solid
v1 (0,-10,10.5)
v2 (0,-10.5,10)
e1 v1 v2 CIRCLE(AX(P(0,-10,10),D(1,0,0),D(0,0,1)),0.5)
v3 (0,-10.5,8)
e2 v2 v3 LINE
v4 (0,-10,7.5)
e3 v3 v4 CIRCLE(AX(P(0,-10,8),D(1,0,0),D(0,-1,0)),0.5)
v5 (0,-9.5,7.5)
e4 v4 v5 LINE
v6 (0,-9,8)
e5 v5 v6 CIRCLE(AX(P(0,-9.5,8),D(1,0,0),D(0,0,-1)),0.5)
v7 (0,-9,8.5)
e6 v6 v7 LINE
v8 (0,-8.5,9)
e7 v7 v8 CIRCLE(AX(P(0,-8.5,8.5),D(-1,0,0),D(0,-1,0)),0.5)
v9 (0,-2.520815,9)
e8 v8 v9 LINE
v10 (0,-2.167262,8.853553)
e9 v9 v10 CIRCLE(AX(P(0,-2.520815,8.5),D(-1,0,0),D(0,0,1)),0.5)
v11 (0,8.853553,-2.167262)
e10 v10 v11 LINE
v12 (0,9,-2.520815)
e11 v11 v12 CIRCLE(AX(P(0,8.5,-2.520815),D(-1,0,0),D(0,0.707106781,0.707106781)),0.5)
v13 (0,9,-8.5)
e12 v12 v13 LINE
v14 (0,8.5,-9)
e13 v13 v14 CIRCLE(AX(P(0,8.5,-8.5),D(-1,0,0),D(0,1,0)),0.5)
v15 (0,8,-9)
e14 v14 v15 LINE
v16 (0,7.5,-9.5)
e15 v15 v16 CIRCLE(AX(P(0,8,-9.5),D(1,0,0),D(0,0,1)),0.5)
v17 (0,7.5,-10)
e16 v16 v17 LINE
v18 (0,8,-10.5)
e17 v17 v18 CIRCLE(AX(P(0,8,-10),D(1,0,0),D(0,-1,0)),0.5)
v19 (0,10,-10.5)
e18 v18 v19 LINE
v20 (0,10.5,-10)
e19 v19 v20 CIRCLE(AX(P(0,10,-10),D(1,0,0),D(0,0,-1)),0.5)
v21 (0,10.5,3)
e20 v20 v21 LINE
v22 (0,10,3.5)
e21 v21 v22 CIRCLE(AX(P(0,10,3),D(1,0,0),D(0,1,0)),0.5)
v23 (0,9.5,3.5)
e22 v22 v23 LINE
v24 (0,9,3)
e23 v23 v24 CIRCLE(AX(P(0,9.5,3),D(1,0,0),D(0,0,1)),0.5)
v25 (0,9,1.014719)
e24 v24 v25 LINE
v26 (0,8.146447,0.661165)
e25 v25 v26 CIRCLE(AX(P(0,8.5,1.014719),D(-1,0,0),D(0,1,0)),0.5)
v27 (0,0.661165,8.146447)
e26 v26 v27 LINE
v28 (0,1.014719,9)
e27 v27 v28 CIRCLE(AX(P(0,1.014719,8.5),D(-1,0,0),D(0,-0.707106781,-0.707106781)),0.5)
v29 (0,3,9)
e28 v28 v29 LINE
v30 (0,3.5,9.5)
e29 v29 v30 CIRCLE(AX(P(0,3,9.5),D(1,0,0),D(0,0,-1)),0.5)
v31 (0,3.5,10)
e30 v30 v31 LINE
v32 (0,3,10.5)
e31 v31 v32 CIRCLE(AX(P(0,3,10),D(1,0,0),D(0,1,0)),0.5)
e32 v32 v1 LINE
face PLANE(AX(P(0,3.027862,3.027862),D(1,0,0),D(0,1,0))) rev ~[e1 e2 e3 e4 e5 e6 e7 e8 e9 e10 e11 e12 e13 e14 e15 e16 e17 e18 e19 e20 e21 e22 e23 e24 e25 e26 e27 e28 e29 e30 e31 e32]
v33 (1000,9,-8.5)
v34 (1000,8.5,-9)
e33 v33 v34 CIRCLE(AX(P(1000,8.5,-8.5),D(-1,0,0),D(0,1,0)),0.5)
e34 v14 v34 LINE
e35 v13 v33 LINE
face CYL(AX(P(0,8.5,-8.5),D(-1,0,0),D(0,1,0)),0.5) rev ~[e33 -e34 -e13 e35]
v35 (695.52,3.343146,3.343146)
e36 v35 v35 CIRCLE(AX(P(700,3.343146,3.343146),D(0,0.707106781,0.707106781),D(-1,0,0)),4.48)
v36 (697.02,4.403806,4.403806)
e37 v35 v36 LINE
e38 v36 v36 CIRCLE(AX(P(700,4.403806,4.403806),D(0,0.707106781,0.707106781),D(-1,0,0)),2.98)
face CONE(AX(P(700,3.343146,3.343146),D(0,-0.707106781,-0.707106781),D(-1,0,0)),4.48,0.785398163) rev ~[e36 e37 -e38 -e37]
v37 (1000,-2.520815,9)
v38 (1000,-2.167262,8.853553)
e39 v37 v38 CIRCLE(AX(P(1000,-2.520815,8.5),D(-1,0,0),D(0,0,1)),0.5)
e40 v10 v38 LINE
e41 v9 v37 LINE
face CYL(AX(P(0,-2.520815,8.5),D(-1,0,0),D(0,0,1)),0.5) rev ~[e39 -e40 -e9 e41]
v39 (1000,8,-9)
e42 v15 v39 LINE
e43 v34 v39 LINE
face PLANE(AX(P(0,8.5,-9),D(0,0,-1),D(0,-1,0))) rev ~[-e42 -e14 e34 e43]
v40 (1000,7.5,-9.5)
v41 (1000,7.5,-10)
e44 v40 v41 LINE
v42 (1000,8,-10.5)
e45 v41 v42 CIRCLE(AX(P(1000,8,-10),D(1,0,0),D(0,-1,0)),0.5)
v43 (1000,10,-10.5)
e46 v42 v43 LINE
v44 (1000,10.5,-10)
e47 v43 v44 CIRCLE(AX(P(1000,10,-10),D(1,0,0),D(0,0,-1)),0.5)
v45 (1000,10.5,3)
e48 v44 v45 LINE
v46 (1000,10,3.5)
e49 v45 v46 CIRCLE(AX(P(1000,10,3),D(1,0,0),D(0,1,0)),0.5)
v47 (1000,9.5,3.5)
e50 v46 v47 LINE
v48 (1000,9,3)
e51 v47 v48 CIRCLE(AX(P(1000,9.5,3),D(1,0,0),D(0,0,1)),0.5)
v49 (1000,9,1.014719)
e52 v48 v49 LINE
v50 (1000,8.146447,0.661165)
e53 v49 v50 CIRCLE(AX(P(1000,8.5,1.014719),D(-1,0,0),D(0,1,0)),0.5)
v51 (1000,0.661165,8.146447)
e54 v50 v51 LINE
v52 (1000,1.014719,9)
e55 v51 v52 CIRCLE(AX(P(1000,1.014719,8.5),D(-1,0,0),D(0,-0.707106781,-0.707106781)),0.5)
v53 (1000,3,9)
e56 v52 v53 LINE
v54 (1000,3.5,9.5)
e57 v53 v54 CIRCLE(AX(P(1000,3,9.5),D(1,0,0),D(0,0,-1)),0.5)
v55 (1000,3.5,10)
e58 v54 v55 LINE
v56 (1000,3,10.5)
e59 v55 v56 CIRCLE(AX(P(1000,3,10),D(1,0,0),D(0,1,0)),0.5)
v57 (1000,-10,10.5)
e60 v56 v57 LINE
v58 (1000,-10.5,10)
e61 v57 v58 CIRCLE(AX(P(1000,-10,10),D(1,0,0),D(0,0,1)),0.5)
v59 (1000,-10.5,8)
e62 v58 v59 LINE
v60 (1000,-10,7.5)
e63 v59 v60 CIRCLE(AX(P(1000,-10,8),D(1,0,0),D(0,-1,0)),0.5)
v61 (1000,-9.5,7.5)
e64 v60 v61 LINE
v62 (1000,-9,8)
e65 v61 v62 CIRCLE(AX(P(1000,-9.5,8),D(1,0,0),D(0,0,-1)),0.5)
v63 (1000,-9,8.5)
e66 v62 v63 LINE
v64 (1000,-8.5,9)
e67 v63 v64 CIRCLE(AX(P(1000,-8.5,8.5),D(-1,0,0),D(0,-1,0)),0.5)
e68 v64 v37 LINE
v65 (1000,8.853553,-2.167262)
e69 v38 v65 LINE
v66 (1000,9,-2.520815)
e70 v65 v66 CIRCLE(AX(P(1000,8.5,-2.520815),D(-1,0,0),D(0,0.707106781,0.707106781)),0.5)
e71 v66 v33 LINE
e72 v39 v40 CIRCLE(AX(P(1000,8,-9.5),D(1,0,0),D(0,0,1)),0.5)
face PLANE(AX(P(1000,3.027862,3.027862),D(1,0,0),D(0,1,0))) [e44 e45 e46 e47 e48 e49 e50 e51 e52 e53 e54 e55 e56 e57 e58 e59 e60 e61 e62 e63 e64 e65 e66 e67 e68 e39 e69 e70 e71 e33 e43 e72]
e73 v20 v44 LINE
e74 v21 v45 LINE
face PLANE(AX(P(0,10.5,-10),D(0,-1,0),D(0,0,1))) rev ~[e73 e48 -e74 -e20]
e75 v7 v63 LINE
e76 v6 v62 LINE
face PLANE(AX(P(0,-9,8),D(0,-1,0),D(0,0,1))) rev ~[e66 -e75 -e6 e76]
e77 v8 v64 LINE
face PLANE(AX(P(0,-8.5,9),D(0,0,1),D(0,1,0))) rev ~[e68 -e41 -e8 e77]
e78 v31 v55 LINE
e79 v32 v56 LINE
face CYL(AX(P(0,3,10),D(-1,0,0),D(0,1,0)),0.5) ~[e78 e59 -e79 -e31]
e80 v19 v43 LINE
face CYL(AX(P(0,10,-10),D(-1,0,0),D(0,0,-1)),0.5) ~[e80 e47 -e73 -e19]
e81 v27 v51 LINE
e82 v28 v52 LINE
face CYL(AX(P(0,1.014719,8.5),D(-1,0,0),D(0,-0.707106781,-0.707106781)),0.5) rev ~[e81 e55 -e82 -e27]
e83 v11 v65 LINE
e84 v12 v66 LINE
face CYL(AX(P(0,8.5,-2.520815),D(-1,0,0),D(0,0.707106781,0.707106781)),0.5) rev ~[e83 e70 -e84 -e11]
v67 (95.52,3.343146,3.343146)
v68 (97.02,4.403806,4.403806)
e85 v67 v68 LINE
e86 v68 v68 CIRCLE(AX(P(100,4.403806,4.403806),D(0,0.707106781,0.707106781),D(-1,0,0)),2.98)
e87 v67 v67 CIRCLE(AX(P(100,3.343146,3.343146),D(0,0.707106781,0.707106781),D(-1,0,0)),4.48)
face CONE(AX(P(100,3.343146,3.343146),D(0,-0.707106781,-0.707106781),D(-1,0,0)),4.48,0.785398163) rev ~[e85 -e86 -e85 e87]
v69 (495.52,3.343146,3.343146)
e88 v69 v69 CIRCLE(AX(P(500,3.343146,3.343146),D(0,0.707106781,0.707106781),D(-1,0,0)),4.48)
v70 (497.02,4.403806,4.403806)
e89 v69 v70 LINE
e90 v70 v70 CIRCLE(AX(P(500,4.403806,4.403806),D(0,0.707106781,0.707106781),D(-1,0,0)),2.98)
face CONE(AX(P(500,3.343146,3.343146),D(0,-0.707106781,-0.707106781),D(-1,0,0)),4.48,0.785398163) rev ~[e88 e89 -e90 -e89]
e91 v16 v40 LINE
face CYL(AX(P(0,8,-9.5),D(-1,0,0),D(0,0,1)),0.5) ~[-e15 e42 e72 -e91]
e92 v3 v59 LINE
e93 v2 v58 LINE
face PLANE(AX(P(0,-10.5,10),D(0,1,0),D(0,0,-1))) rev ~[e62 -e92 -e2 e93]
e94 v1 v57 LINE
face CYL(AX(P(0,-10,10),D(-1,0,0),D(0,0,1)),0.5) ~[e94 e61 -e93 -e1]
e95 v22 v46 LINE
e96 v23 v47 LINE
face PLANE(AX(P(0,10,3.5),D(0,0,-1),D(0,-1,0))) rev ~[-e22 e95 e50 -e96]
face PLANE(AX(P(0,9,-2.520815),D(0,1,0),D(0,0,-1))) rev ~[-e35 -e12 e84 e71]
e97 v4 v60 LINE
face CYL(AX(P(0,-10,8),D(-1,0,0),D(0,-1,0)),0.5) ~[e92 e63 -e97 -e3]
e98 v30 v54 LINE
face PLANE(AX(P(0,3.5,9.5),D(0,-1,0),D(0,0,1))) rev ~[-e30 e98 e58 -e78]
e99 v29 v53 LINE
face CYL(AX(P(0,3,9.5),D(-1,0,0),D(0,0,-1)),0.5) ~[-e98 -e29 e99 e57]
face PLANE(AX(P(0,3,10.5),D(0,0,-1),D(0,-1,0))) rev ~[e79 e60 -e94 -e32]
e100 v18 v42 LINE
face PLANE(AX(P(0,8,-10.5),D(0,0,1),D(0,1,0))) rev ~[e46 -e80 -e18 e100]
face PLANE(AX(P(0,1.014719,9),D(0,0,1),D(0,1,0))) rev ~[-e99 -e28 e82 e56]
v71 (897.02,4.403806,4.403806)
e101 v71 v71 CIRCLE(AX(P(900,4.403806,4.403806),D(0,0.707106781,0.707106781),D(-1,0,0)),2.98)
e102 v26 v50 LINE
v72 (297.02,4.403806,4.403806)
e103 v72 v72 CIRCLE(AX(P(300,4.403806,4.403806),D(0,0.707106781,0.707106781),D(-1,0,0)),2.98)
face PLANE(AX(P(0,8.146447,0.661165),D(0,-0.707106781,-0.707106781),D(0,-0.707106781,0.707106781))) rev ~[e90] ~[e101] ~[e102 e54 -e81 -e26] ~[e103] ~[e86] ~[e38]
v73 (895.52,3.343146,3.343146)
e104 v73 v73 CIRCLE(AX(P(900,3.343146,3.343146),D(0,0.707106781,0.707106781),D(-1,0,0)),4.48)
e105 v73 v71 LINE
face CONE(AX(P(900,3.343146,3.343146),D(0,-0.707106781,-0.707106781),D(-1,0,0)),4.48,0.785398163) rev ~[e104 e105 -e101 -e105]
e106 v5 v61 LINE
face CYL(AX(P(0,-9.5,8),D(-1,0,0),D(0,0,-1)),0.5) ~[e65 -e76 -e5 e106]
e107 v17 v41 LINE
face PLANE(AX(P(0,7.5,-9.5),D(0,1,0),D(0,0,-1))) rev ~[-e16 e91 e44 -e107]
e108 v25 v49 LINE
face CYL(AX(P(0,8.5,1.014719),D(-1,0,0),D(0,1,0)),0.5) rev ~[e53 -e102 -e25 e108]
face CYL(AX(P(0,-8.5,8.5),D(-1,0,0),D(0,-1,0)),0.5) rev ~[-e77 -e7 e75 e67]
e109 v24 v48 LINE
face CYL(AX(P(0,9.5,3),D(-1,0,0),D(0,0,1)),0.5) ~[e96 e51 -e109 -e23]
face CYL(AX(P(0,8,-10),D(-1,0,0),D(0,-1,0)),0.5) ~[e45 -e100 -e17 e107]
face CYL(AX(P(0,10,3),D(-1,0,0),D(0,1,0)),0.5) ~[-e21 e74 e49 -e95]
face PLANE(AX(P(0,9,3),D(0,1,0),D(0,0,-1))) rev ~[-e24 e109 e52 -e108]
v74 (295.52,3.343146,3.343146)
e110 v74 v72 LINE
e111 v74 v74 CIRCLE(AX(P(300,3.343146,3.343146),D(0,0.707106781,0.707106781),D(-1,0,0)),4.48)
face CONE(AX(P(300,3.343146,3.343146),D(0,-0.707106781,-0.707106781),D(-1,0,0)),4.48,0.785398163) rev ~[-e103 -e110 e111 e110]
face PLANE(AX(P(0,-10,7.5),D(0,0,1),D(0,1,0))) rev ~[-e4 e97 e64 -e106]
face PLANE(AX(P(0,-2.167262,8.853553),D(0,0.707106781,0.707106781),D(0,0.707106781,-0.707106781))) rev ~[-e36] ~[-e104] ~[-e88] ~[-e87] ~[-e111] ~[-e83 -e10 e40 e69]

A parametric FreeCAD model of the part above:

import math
import FreeCAD as App
import Part
import Sketcher
from FreeCAD import Vector

doc = App.newDocument("Part")
body = doc.addObject("PartDesign::Body", "Body")

sketch1 = body.newObject("Sketcher::SketchObject", "Sketch")
sketch1.AttachmentSupport = (doc.getObject("YZ_Plane"), [""])
sketch1.MapMode = "FlatFace"
sketch1.addGeometry(Part.LineSegment(Vector(8, -10.5, 0), Vector(10, -10.5, 0)), False)
sketch1.addGeometry(Part.ArcOfCircle(Part.Circle(Vector(10, -10, 0), Vector(0, 0, 1), 0.5), math.radians(-90), math.radians(0)), False)
sketch1.addGeometry(Part.LineSegment(Vector(10.5, -10, 0), Vector(10.5, 3, 0)), False)
sketch1.addGeometry(Part.ArcOfCircle(Part.Circle(Vector(10, 3, 0), Vector(0, 0, 1), 0.5), math.radians(0), math.radians(90)), False)
sketch1.addGeometry(Part.LineSegment(Vector(10, 3.5, 0), Vector(9.5, 3.5, 0)), False)
sketch1.addGeometry(Part.ArcOfCircle(Part.Circle(Vector(9.5, 3, 0), Vector(0, 0, 1), 0.5), math.radians(90), math.radians(180)), False)
sketch1.addGeometry(Part.LineSegment(Vector(9, 3, 0), Vector(9, 1.01, 0)), False)
sketch1.addGeometry(Part.ArcOfCircle(Part.Circle(Vector(8.5, 1.01, 0), Vector(0, 0, 1), 0.5), math.radians(-135), math.radians(0)), False)
sketch1.addGeometry(Part.LineSegment(Vector(8.15, 0.66, 0), Vector(0.66, 8.15, 0)), False)
sketch1.addGeometry(Part.ArcOfCircle(Part.Circle(Vector(1.01, 8.5, 0), Vector(0, 0, 1), 0.5), math.radians(90), math.radians(225)), False)
sketch1.addGeometry(Part.LineSegment(Vector(1.01, 9, 0), Vector(3, 9, 0)), False)
sketch1.addGeometry(Part.ArcOfCircle(Part.Circle(Vector(3, 9.5, 0), Vector(0, 0, 1), 0.5), math.radians(-90), math.radians(0)), False)
sketch1.addGeometry(Part.LineSegment(Vector(3.5, 9.5, 0), Vector(3.5, 10, 0)), False)
sketch1.addGeometry(Part.ArcOfCircle(Part.Circle(Vector(3, 10, 0), Vector(0, 0, 1), 0.5), math.radians(0), math.radians(90)), False)
sketch1.addGeometry(Part.LineSegment(Vector(3, 10.5, 0), Vector(-10, 10.5, 0)), False)
sketch1.addGeometry(Part.ArcOfCircle(Part.Circle(Vector(-10, 10, 0), Vector(0, 0, 1), 0.5), math.radians(90), math.radians(180)), False)
sketch1.addGeometry(Part.LineSegment(Vector(-10.5, 10, 0), Vector(-10.5, 8, 0)), False)
sketch1.addGeometry(Part.ArcOfCircle(Part.Circle(Vector(-10, 8, 0), Vector(0, 0, 1), 0.5), math.radians(180), math.radians(270)), False)
sketch1.addGeometry(Part.LineSegment(Vector(-10, 7.5, 0), Vector(-9.5, 7.5, 0)), False)
sketch1.addGeometry(Part.ArcOfCircle(Part.Circle(Vector(-9.5, 8, 0), Vector(0, 0, 1), 0.5), math.radians(-90), math.radians(0)), False)
sketch1.addGeometry(Part.LineSegment(Vector(-9, 8, 0), Vector(-9, 8.5, 0)), False)
sketch1.addGeometry(Part.ArcOfCircle(Part.Circle(Vector(-8.5, 8.5, 0), Vector(0, 0, 1), 0.5), math.radians(90), math.radians(180)), False)
sketch1.addGeometry(Part.LineSegment(Vector(-8.5, 9, 0), Vector(-2.52, 9, 0)), False)
sketch1.addGeometry(Part.ArcOfCircle(Part.Circle(Vector(-2.52, 8.5, 0), Vector(0, 0, 1), 0.5), math.radians(45), math.radians(90)), False)
sketch1.addGeometry(Part.LineSegment(Vector(-2.17, 8.85, 0), Vector(8.85, -2.17, 0)), False)
sketch1.addGeometry(Part.ArcOfCircle(Part.Circle(Vector(8.5, -2.52, 0), Vector(0, 0, 1), 0.5), math.radians(0), math.radians(45)), False)
sketch1.addGeometry(Part.LineSegment(Vector(9, -2.52, 0), Vector(9, -8.5, 0)), False)
sketch1.addGeometry(Part.ArcOfCircle(Part.Circle(Vector(8.5, -8.5, 0), Vector(0, 0, 1), 0.5), math.radians(-90), math.radians(0)), False)
sketch1.addGeometry(Part.LineSegment(Vector(8.5, -9, 0), Vector(8, -9, 0)), False)
sketch1.addGeometry(Part.ArcOfCircle(Part.Circle(Vector(8, -9.5, 0), Vector(0, 0, 1), 0.5), math.radians(90), math.radians(180)), False)
sketch1.addGeometry(Part.LineSegment(Vector(7.5, -9.5, 0), Vector(7.5, -10, 0)), False)
sketch1.addGeometry(Part.ArcOfCircle(Part.Circle(Vector(8, -10, 0), Vector(0, 0, 1), 0.5), math.radians(180), math.radians(270)), False)
sketch1.addConstraint(Sketcher.Constraint("Tangent", 0, 2, 1, 1))
sketch1.addConstraint(Sketcher.Constraint("Tangent", 1, 2, 2, 1))
sketch1.addConstraint(Sketcher.Constraint("Tangent", 2, 2, 3, 1))
sketch1.addConstraint(Sketcher.Constraint("Tangent", 3, 2, 4, 1))
sketch1.addConstraint(Sketcher.Constraint("Tangent", 4, 2, 5, 1))
sketch1.addConstraint(Sketcher.Constraint("Tangent", 5, 2, 6, 1))
sketch1.addConstraint(Sketcher.Constraint("Tangent", 6, 2, 7, 2))
sketch1.addConstraint(Sketcher.Constraint("Tangent", 7, 1, 8, 1))
sketch1.addConstraint(Sketcher.Constraint("Tangent", 8, 2, 9, 2))
sketch1.addConstraint(Sketcher.Constraint("Tangent", 9, 1, 10, 1))
sketch1.addConstraint(Sketcher.Constraint("Tangent", 10, 2, 11, 1))
sketch1.addConstraint(Sketcher.Constraint("Tangent", 11, 2, 12, 1))
sketch1.addConstraint(Sketcher.Constraint("Tangent", 12, 2, 13, 1))
sketch1.addConstraint(Sketcher.Constraint("Tangent", 13, 2, 14, 1))
sketch1.addConstraint(Sketcher.Constraint("Tangent", 14, 2, 15, 1))
sketch1.addConstraint(Sketcher.Constraint("Tangent", 15, 2, 16, 1))
sketch1.addConstraint(Sketcher.Constraint("Tangent", 16, 2, 17, 1))
sketch1.addConstraint(Sketcher.Constraint("Tangent", 17, 2, 18, 1))
sketch1.addConstraint(Sketcher.Constraint("Tangent", 18, 2, 19, 1))
sketch1.addConstraint(Sketcher.Constraint("Tangent", 19, 2, 20, 1))
sketch1.addConstraint(Sketcher.Constraint("Tangent", 20, 2, 21, 2))
sketch1.addConstraint(Sketcher.Constraint("Tangent", 21, 1, 22, 1))
sketch1.addConstraint(Sketcher.Constraint("Tangent", 22, 2, 23, 2))
sketch1.addConstraint(Sketcher.Constraint("Tangent", 23, 1, 24, 1))
sketch1.addConstraint(Sketcher.Constraint("Tangent", 24, 2, 25, 2))
sketch1.addConstraint(Sketcher.Constraint("Tangent", 25, 1, 26, 1))
sketch1.addConstraint(Sketcher.Constraint("Tangent", 26, 2, 27, 2))
sketch1.addConstraint(Sketcher.Constraint("Tangent", 27, 1, 28, 1))
sketch1.addConstraint(Sketcher.Constraint("Tangent", 28, 2, 29, 1))
sketch1.addConstraint(Sketcher.Constraint("Tangent", 29, 2, 30, 1))
sketch1.addConstraint(Sketcher.Constraint("Tangent", 30, 2, 31, 1))
sketch1.addConstraint(Sketcher.Constraint("Tangent", 31, 2, 0, 1))
sketch1.addConstraint(Sketcher.Constraint("Horizontal", 0))
sketch1.addConstraint(Sketcher.Constraint("Vertical", 2))
sketch1.addConstraint(Sketcher.Constraint("Horizontal", 4))
sketch1.addConstraint(Sketcher.Constraint("Vertical", 6))
sketch1.addConstraint(Sketcher.Constraint("Horizontal", 10))
sketch1.addConstraint(Sketcher.Constraint("Vertical", 12))
sketch1.addConstraint(Sketcher.Constraint("Horizontal", 14))
sketch1.addConstraint(Sketcher.Constraint("Vertical", 16))
sketch1.addConstraint(Sketcher.Constraint("Horizontal", 18))
sketch1.addConstraint(Sketcher.Constraint("Vertical", 20))
sketch1.addConstraint(Sketcher.Constraint("Horizontal", 22))
sketch1.addConstraint(Sketcher.Constraint("Vertical", 26))
sketch1.addConstraint(Sketcher.Constraint("Horizontal", 28))
sketch1.addConstraint(Sketcher.Constraint("Vertical", 30))
sketch1.addConstraint(Sketcher.Constraint("Equal", 1, 3))
sketch1.addConstraint(Sketcher.Constraint("Equal", 3, 5))
sketch1.addConstraint(Sketcher.Constraint("Equal", 5, 7))
sketch1.addConstraint(Sketcher.Constraint("Equal", 7, 9))
sketch1.addConstraint(Sketcher.Constraint("Equal", 9, 11))
sketch1.addConstraint(Sketcher.Constraint("Equal", 11, 13))
sketch1.addConstraint(Sketcher.Constraint("Equal", 13, 15))
sketch1.addConstraint(Sketcher.Constraint("Equal", 15, 17))
sketch1.addConstraint(Sketcher.Constraint("Equal", 17, 19))
sketch1.addConstraint(Sketcher.Constraint("Equal", 19, 21))
sketch1.addConstraint(Sketcher.Constraint("Equal", 21, 23))
sketch1.addConstraint(Sketcher.Constraint("Equal", 23, 25))
sketch1.addConstraint(Sketcher.Constraint("Equal", 25, 27))
sketch1.addConstraint(Sketcher.Constraint("Equal", 27, 29))
sketch1.addConstraint(Sketcher.Constraint("Equal", 29, 31))
sketch1.addConstraint(Sketcher.Constraint("Symmetric", 1, 3, 15, 3, -1, 1))
sketch1.addConstraint(Sketcher.Constraint("Symmetric", 21, 3, 27, 3, -1, 1))
sketch1.addConstraint(Sketcher.Constraint("Parallel", 8, 24))
sketch1.addConstraint(Sketcher.Constraint("Horizontal", 9, 3, 21, 3))
sketch1.addConstraint(Sketcher.Constraint("Vertical", 7, 3, 25, 3))
sketch1.addConstraint(Sketcher.Constraint("Equal", 18, 28))
sketch1.addConstraint(Sketcher.Constraint("Equal", 14, 2))
sketch1.addConstraint(Sketcher.Constraint("Equal", 10, 6))
sketch1.addConstraint(Sketcher.Constraint("Equal", 28, 12))
sketch1.addConstraint(Sketcher.Constraint("Equal", 0, 16))
sketch1.addConstraint(Sketcher.Constraint("Equal", 22, 26))
sketch1.addConstraint(Sketcher.Constraint("Radius", 1, 0.5))
sketch1.addConstraint(Sketcher.Constraint("DistanceX", 0, 1, 0, 2, 2.0))
sketch1.addConstraint(Sketcher.Constraint("DistanceX", 14, 2, 14, 1, 13.0))
sketch1.addConstraint(Sketcher.Constraint("DistanceX", -1, 1, 1, 3, 10.0))
sketch1.addConstraint(Sketcher.Constraint("DistanceX", 10, 1, 10, 2, 1.985281))
sketch1.addConstraint(Sketcher.Constraint("DistanceX", 22, 1, 22, 2, 5.979185))
pad1 = body.newObject("PartDesign::Pad", "Pad")
pad1.Profile = sketch1
pad1.Length = 1000

sketch2 = body.newObject("Sketcher::SketchObject", "Sketch001")
sketch2.Placement = App.Placement(Vector(0, 3.343146, 3.343146), App.Rotation(Vector(1, 0, 0), Vector(0, -0.707106781, 0.707106781), Vector(0, -0.707106781, -0.707106781), "ZXY"))
sketch2.addGeometry(Part.Circle(Vector(300, 0, 0), Vector(0, 0, 1), 2.2), False)
sketch2.addGeometry(Part.Circle(Vector(500, 0, 0), Vector(0, 0, 1), 2.2), False)
sketch2.addGeometry(Part.Circle(Vector(700, 0, 0), Vector(0, 0, 1), 2.2), False)
sketch2.addGeometry(Part.Circle(Vector(900, 0, 0), Vector(0, 0, 1), 2.2), False)
sketch2.addGeometry(Part.Circle(Vector(100, 0, 0), Vector(0, 0, 1), 2.2), False)
sketch2.addConstraint(Sketcher.Constraint("Equal", 0, 1))
sketch2.addConstraint(Sketcher.Constraint("Equal", 1, 2))
sketch2.addConstraint(Sketcher.Constraint("Equal", 2, 3))
sketch2.addConstraint(Sketcher.Constraint("Equal", 3, 4))
sketch2.addConstraint(Sketcher.Constraint("PointOnObject", 0, 3, -1))
sketch2.addConstraint(Sketcher.Constraint("PointOnObject", 1, 3, -1))
sketch2.addConstraint(Sketcher.Constraint("PointOnObject", 2, 3, -1))
sketch2.addConstraint(Sketcher.Constraint("PointOnObject", 3, 3, -1))
sketch2.addConstraint(Sketcher.Constraint("PointOnObject", 4, 3, -1))
sketch2.addConstraint(Sketcher.Constraint("Diameter", 0, 4.4))
sketch2.addConstraint(Sketcher.Constraint("DistanceX", -1, 1, 0, 3, 300.0))
sketch2.addConstraint(Sketcher.Constraint("DistanceX", -1, 1, 1, 3, 500.0))
sketch2.addConstraint(Sketcher.Constraint("DistanceX", -1, 1, 2, 3, 700.0))
sketch2.addConstraint(Sketcher.Constraint("DistanceX", -1, 1, 3, 3, 900.0))
sketch2.addConstraint(Sketcher.Constraint("DistanceX", -1, 1, 4, 3, 100.0))
doc.recompute()
hole = body.newObject("PartDesign::Hole", "Hole")
hole.Profile = sketch2
hole.ThreadType = "None"
hole.Diameter = 4.4
hole.DepthType = "ThroughAll"
hole.HoleCutType = "Countersink"
hole.HoleCutDiameter = 8.96
hole.HoleCutCountersinkAngle = 90

doc.recompute()
